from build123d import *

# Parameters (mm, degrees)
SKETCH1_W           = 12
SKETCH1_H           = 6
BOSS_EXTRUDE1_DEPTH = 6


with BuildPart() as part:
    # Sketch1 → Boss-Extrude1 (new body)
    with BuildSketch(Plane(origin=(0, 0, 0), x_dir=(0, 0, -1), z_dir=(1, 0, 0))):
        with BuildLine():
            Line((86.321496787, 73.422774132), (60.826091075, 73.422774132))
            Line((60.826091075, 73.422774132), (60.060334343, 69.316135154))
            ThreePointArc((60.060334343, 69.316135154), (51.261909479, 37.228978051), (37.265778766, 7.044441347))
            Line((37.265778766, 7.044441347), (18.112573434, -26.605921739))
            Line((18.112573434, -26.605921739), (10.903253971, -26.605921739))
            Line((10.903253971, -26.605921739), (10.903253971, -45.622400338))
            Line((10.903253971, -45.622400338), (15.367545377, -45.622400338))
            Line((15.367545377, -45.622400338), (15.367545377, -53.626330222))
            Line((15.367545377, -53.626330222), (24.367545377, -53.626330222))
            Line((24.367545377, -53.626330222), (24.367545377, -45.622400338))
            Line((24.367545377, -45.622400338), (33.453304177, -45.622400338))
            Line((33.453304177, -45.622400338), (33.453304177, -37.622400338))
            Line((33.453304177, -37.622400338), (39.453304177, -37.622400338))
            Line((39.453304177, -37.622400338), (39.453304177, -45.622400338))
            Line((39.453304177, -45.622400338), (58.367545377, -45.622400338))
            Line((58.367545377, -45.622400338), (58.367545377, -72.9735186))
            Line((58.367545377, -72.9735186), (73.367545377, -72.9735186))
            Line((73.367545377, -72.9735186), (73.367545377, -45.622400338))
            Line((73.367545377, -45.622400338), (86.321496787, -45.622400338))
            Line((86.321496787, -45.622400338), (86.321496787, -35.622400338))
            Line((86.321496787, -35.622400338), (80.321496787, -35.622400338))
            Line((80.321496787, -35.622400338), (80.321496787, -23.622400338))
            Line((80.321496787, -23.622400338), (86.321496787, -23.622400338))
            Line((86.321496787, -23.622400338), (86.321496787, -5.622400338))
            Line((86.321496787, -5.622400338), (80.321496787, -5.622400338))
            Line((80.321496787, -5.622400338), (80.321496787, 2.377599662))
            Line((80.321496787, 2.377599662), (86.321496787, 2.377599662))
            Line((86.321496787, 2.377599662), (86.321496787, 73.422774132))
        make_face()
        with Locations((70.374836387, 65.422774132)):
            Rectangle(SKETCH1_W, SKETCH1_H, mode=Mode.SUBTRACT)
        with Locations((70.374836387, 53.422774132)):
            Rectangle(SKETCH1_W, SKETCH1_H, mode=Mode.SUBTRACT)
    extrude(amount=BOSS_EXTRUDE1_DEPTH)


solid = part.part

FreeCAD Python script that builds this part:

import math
import FreeCAD as App
import Part
import Sketcher

doc = App.newDocument("Part")
body = doc.addObject("PartDesign::Body", "Body")

# Sketch on YZ plane
sketch1 = body.newObject("Sketcher::SketchObject", "Sketch")
sketch1.AttachmentSupport = (doc.getObject("YZ_Plane"), [""])
sketch1.MapMode = "FlatFace"
sketch1.addGeometry([
    Part.LineSegment(App.Vector(73.4, -86.3, 0), App.Vector(73.4, -60.8, 0)),  # 0
    Part.LineSegment(App.Vector(73.4, -60.8, 0), App.Vector(69.3, -60.1, 0)),  # 1
    Part.ArcOfCircle(Part.Circle(App.Vector(106, 136.6, 0), App.Vector(0, 0, 1), 200), math.radians(-119.65), math.radians(-100.56)),  # 2
    Part.LineSegment(App.Vector(7, -37.3, 0), App.Vector(-26.6, -18.1, 0)),  # 3
    Part.LineSegment(App.Vector(-26.6, -18.1, 0), App.Vector(-26.6, -10.9, 0)),  # 4
    Part.LineSegment(App.Vector(-26.6, -10.9, 0), App.Vector(-45.6, -10.9, 0)),  # 5
    Part.LineSegment(App.Vector(-45.6, -10.9, 0), App.Vector(-45.6, -15.4, 0)),  # 6
    Part.LineSegment(App.Vector(-45.6, -15.4, 0), App.Vector(-53.6, -15.4, 0)),  # 7
    Part.LineSegment(App.Vector(-53.6, -15.4, 0), App.Vector(-53.6, -24.4, 0)),  # 8
    Part.LineSegment(App.Vector(-53.6, -24.4, 0), App.Vector(-45.6, -24.4, 0)),  # 9
    Part.LineSegment(App.Vector(-45.6, -24.4, 0), App.Vector(-45.6, -33.5, 0)),  # 10
    Part.LineSegment(App.Vector(-45.6, -33.5, 0), App.Vector(-37.6, -33.5, 0)),  # 11
    Part.LineSegment(App.Vector(-37.6, -33.5, 0), App.Vector(-37.6, -39.5, 0)),  # 12
    Part.LineSegment(App.Vector(-37.6, -39.5, 0), App.Vector(-45.6, -39.5, 0)),  # 13
    Part.LineSegment(App.Vector(-45.6, -39.5, 0), App.Vector(-45.6, -58.4, 0)),  # 14
    Part.LineSegment(App.Vector(-45.6, -58.4, 0), App.Vector(-73, -58.4, 0)),  # 15
    Part.LineSegment(App.Vector(-73, -58.4, 0), App.Vector(-73, -73.4, 0)),  # 16
    Part.LineSegment(App.Vector(-73, -73.4, 0), App.Vector(-45.6, -73.4, 0)),  # 17
    Part.LineSegment(App.Vector(-45.6, -73.4, 0), App.Vector(-45.6, -86.3, 0)),  # 18
    Part.LineSegment(App.Vector(-45.6, -86.3, 0), App.Vector(-35.6, -86.3, 0)),  # 19
    Part.LineSegment(App.Vector(-35.6, -86.3, 0), App.Vector(-35.6, -80.3, 0)),  # 20
    Part.LineSegment(App.Vector(-35.6, -80.3, 0), App.Vector(-23.6, -80.3, 0)),  # 21
    Part.LineSegment(App.Vector(-23.6, -80.3, 0), App.Vector(-23.6, -86.3, 0)),  # 22
    Part.LineSegment(App.Vector(-23.6, -86.3, 0), App.Vector(-5.6, -86.3, 0)),  # 23
    Part.LineSegment(App.Vector(-5.6, -86.3, 0), App.Vector(-5.6, -80.3, 0)),  # 24
    Part.LineSegment(App.Vector(-5.6, -80.3, 0), App.Vector(2.4, -80.3, 0)),  # 25
    Part.LineSegment(App.Vector(2.4, -80.3, 0), App.Vector(2.4, -86.3, 0)),  # 26
    Part.LineSegment(App.Vector(2.4, -86.3, 0), App.Vector(73.4, -86.3, 0)),  # 27
    Part.LineSegment(App.Vector(50.4, -76.4, 0), App.Vector(50.4, -64.4, 0)),  # 28
    Part.LineSegment(App.Vector(50.4, -64.4, 0), App.Vector(56.4, -64.4, 0)),  # 29
    Part.LineSegment(App.Vector(56.4, -64.4, 0), App.Vector(56.4, -76.4, 0)),  # 30
    Part.LineSegment(App.Vector(56.4, -76.4, 0), App.Vector(50.4, -76.4, 0)),  # 31
    Part.LineSegment(App.Vector(62.4, -76.4, 0), App.Vector(62.4, -64.4, 0)),  # 32
    Part.LineSegment(App.Vector(62.4, -64.4, 0), App.Vector(68.4, -64.4, 0)),  # 33
    Part.LineSegment(App.Vector(68.4, -64.4, 0), App.Vector(68.4, -76.4, 0)),  # 34
    Part.LineSegment(App.Vector(68.4, -76.4, 0), App.Vector(62.4, -76.4, 0)),  # 35
], False)
sketch1.addConstraint([
    Sketcher.Constraint("Coincident", 0, 2, 1, 1),
    Sketcher.Constraint("Tangent", 1, 2, 2, 2),
    Sketcher.Constraint("Tangent", 2, 1, 3, 1),
    Sketcher.Constraint("Coincident", 3, 2, 4, 1),
    Sketcher.Constraint("Coincident", 4, 2, 5, 1),
    Sketcher.Constraint("Coincident", 5, 2, 6, 1),
    Sketcher.Constraint("Coincident", 6, 2, 7, 1),
    Sketcher.Constraint("Coincident", 7, 2, 8, 1),
    Sketcher.Constraint("Coincident", 8, 2, 9, 1),
    Sketcher.Constraint("Coincident", 9, 2, 10, 1),
    Sketcher.Constraint("Coincident", 10, 2, 11, 1),
    Sketcher.Constraint("Coincident", 11, 2, 12, 1),
    Sketcher.Constraint("Coincident", 12, 2, 13, 1),
    Sketcher.Constraint("Coincident", 13, 2, 14, 1),
    Sketcher.Constraint("Coincident", 14, 2, 15, 1),
    Sketcher.Constraint("Coincident", 15, 2, 16, 1),
    Sketcher.Constraint("Coincident", 16, 2, 17, 1),
    Sketcher.Constraint("Coincident", 17, 2, 18, 1),
    Sketcher.Constraint("Coincident", 18, 2, 19, 1),
    Sketcher.Constraint("Coincident", 19, 2, 20, 1),
    Sketcher.Constraint("Coincident", 20, 2, 21, 1),
    Sketcher.Constraint("Coincident", 21, 2, 22, 1),
    Sketcher.Constraint("Coincident", 22, 2, 23, 1),
    Sketcher.Constraint("Coincident", 23, 2, 24, 1),
    Sketcher.Constraint("Coincident", 24, 2, 25, 1),
    Sketcher.Constraint("Coincident", 25, 2, 26, 1),
    Sketcher.Constraint("Coincident", 26, 2, 27, 1),
    Sketcher.Constraint("Coincident", 27, 2, 0, 1),
    Sketcher.Constraint("Coincident", 28, 2, 29, 1),
    Sketcher.Constraint("Coincident", 29, 2, 30, 1),
    Sketcher.Constraint("Coincident", 30, 2, 31, 1),
    Sketcher.Constraint("Coincident", 31, 2, 28, 1),
    Sketcher.Constraint("Coincident", 32, 2, 33, 1),
    Sketcher.Constraint("Coincident", 33, 2, 34, 1),
    Sketcher.Constraint("Coincident", 34, 2, 35, 1),
    Sketcher.Constraint("Coincident", 35, 2, 32, 1),
    Sketcher.Constraint("Vertical", 0),
    Sketcher.Constraint("Vertical", 4),
    Sketcher.Constraint("Horizontal", 5),
    Sketcher.Constraint("Vertical", 6),
    Sketcher.Constraint("Horizontal", 7),
    Sketcher.Constraint("Vertical", 8),
    Sketcher.Constraint("Horizontal", 9),
    Sketcher.Constraint("Vertical", 10),
    Sketcher.Constraint("Horizontal", 11),
    Sketcher.Constraint("Vertical", 12),
    Sketcher.Constraint("Horizontal", 13),
    Sketcher.Constraint("Vertical", 14),
    Sketcher.Constraint("Horizontal", 15),
    Sketcher.Constraint("Vertical", 16),
    Sketcher.Constraint("Horizontal", 17),
    Sketcher.Constraint("Vertical", 18),
    Sketcher.Constraint("Horizontal", 19),
    Sketcher.Constraint("Vertical", 20),
    Sketcher.Constraint("Horizontal", 21),
    Sketcher.Constraint("Vertical", 22),
    Sketcher.Constraint("Horizontal", 23),
    Sketcher.Constraint("Vertical", 24),
    Sketcher.Constraint("Horizontal", 25),
    Sketcher.Constraint("Vertical", 26),
    Sketcher.Constraint("Horizontal", 27),
    Sketcher.Constraint("Vertical", 28),
    Sketcher.Constraint("Horizontal", 29),
    Sketcher.Constraint("Vertical", 30),
    Sketcher.Constraint("Horizontal", 31),
    Sketcher.Constraint("Vertical", 32),
    Sketcher.Constraint("Horizontal", 33),
    Sketcher.Constraint("Vertical", 34),
    Sketcher.Constraint("Horizontal", 35),
    Sketcher.Constraint("Horizontal", 19, 2, 22, 2),
    Sketcher.Constraint("Horizontal", 21, 2, 24, 2),
    Sketcher.Constraint("Horizontal", 23, 2, 26, 2),
    Sketcher.Constraint("Horizontal", 29, 2, 32, 2),
    Sketcher.Constraint("Horizontal", 31, 2, 34, 2),
    Sketcher.Constraint("Vertical", 6, 2, 9, 2),
    Sketcher.Constraint("Vertical", 10, 2, 13, 2),
    Sketcher.Constraint("Vertical", 14, 2, 17, 2),
    Sketcher.Constraint("Equal", 13, 25),
    Sketcher.Constraint("Equal", 31, 33),
    Sketcher.Constraint("Equal", 35, 12),
    Sketcher.Constraint("Equal", 12, 20),
    Sketcher.Constraint("Equal", 21, 28),
    Sketcher.Constraint("Radius", 2, 200.0),
    Sketcher.Constraint("DistanceX", 11, 1, 11, 2, 8.0),
    Sketcher.Constraint("DistanceX", 19, 1, 19, 2, 10.0),
    Sketcher.Constraint("DistanceX", 21, 1, 21, 2, 12.0),
    Sketcher.Constraint("DistanceX", 23, 1, 23, 2, 18.0),
    Sketcher.Constraint("DistanceX", 29, 1, 29, 2, 6.0),
    Sketcher.Constraint("DistanceY", 8, 2, 8, 1, 9.0),
    Sketcher.Constraint("DistanceY", 16, 2, 16, 1, 15.0),
    Sketcher.Constraint("DistanceY", 14, 2, 9, 2, 34.0),
    Sketcher.Constraint("DistanceX", 28, 2, 0, 2, 23.0),
    Sketcher.Constraint("DistanceX", 29, 2, 32, 2, 6.0),
    Sketcher.Constraint("DistanceX", 5, 2, 5, 1, 19.016479),
    Sketcher.Constraint("DistanceX", 7, 2, 7, 1, 8.00393),
    Sketcher.Constraint("DistanceX", 15, 2, 15, 1, 27.351118),
    Sketcher.Constraint("DistanceY", 4, 1, 4, 2, 7.209319),
    Sketcher.Constraint("DistanceY", 6, 2, 6, 1, 4.464291),
    Sketcher.Constraint("DistanceY", 10, 2, 10, 1, 9.085759),
    Sketcher.Constraint("DistanceY", 18, 2, 18, 1, 12.953951),
    Sketcher.Constraint("DistanceX", 5, 2, -1, 1, 45.6224),
    Sketcher.Constraint("DistanceX", 27, 1, 27, 2, 71.045174),
    Sketcher.Constraint("DistanceY", 0, 1, 0, 2, 25.495406),
    Sketcher.Constraint("DistanceX", -1, 1, 2, 3, 105.977811),
    Sketcher.Constraint("DistanceY", 0, 2, -1, 1, 60.826091),
    Sketcher.Constraint("DistanceY", 0, 2, 2, 3, 197.376849),
    Sketcher.Constraint("DistanceY", 27, 2, 28, 2, 21.94666),
])
pad1 = body.newObject("PartDesign::Pad", "Pad")
pad1.Profile = sketch1
pad1.Length = 6

doc.recompute()
